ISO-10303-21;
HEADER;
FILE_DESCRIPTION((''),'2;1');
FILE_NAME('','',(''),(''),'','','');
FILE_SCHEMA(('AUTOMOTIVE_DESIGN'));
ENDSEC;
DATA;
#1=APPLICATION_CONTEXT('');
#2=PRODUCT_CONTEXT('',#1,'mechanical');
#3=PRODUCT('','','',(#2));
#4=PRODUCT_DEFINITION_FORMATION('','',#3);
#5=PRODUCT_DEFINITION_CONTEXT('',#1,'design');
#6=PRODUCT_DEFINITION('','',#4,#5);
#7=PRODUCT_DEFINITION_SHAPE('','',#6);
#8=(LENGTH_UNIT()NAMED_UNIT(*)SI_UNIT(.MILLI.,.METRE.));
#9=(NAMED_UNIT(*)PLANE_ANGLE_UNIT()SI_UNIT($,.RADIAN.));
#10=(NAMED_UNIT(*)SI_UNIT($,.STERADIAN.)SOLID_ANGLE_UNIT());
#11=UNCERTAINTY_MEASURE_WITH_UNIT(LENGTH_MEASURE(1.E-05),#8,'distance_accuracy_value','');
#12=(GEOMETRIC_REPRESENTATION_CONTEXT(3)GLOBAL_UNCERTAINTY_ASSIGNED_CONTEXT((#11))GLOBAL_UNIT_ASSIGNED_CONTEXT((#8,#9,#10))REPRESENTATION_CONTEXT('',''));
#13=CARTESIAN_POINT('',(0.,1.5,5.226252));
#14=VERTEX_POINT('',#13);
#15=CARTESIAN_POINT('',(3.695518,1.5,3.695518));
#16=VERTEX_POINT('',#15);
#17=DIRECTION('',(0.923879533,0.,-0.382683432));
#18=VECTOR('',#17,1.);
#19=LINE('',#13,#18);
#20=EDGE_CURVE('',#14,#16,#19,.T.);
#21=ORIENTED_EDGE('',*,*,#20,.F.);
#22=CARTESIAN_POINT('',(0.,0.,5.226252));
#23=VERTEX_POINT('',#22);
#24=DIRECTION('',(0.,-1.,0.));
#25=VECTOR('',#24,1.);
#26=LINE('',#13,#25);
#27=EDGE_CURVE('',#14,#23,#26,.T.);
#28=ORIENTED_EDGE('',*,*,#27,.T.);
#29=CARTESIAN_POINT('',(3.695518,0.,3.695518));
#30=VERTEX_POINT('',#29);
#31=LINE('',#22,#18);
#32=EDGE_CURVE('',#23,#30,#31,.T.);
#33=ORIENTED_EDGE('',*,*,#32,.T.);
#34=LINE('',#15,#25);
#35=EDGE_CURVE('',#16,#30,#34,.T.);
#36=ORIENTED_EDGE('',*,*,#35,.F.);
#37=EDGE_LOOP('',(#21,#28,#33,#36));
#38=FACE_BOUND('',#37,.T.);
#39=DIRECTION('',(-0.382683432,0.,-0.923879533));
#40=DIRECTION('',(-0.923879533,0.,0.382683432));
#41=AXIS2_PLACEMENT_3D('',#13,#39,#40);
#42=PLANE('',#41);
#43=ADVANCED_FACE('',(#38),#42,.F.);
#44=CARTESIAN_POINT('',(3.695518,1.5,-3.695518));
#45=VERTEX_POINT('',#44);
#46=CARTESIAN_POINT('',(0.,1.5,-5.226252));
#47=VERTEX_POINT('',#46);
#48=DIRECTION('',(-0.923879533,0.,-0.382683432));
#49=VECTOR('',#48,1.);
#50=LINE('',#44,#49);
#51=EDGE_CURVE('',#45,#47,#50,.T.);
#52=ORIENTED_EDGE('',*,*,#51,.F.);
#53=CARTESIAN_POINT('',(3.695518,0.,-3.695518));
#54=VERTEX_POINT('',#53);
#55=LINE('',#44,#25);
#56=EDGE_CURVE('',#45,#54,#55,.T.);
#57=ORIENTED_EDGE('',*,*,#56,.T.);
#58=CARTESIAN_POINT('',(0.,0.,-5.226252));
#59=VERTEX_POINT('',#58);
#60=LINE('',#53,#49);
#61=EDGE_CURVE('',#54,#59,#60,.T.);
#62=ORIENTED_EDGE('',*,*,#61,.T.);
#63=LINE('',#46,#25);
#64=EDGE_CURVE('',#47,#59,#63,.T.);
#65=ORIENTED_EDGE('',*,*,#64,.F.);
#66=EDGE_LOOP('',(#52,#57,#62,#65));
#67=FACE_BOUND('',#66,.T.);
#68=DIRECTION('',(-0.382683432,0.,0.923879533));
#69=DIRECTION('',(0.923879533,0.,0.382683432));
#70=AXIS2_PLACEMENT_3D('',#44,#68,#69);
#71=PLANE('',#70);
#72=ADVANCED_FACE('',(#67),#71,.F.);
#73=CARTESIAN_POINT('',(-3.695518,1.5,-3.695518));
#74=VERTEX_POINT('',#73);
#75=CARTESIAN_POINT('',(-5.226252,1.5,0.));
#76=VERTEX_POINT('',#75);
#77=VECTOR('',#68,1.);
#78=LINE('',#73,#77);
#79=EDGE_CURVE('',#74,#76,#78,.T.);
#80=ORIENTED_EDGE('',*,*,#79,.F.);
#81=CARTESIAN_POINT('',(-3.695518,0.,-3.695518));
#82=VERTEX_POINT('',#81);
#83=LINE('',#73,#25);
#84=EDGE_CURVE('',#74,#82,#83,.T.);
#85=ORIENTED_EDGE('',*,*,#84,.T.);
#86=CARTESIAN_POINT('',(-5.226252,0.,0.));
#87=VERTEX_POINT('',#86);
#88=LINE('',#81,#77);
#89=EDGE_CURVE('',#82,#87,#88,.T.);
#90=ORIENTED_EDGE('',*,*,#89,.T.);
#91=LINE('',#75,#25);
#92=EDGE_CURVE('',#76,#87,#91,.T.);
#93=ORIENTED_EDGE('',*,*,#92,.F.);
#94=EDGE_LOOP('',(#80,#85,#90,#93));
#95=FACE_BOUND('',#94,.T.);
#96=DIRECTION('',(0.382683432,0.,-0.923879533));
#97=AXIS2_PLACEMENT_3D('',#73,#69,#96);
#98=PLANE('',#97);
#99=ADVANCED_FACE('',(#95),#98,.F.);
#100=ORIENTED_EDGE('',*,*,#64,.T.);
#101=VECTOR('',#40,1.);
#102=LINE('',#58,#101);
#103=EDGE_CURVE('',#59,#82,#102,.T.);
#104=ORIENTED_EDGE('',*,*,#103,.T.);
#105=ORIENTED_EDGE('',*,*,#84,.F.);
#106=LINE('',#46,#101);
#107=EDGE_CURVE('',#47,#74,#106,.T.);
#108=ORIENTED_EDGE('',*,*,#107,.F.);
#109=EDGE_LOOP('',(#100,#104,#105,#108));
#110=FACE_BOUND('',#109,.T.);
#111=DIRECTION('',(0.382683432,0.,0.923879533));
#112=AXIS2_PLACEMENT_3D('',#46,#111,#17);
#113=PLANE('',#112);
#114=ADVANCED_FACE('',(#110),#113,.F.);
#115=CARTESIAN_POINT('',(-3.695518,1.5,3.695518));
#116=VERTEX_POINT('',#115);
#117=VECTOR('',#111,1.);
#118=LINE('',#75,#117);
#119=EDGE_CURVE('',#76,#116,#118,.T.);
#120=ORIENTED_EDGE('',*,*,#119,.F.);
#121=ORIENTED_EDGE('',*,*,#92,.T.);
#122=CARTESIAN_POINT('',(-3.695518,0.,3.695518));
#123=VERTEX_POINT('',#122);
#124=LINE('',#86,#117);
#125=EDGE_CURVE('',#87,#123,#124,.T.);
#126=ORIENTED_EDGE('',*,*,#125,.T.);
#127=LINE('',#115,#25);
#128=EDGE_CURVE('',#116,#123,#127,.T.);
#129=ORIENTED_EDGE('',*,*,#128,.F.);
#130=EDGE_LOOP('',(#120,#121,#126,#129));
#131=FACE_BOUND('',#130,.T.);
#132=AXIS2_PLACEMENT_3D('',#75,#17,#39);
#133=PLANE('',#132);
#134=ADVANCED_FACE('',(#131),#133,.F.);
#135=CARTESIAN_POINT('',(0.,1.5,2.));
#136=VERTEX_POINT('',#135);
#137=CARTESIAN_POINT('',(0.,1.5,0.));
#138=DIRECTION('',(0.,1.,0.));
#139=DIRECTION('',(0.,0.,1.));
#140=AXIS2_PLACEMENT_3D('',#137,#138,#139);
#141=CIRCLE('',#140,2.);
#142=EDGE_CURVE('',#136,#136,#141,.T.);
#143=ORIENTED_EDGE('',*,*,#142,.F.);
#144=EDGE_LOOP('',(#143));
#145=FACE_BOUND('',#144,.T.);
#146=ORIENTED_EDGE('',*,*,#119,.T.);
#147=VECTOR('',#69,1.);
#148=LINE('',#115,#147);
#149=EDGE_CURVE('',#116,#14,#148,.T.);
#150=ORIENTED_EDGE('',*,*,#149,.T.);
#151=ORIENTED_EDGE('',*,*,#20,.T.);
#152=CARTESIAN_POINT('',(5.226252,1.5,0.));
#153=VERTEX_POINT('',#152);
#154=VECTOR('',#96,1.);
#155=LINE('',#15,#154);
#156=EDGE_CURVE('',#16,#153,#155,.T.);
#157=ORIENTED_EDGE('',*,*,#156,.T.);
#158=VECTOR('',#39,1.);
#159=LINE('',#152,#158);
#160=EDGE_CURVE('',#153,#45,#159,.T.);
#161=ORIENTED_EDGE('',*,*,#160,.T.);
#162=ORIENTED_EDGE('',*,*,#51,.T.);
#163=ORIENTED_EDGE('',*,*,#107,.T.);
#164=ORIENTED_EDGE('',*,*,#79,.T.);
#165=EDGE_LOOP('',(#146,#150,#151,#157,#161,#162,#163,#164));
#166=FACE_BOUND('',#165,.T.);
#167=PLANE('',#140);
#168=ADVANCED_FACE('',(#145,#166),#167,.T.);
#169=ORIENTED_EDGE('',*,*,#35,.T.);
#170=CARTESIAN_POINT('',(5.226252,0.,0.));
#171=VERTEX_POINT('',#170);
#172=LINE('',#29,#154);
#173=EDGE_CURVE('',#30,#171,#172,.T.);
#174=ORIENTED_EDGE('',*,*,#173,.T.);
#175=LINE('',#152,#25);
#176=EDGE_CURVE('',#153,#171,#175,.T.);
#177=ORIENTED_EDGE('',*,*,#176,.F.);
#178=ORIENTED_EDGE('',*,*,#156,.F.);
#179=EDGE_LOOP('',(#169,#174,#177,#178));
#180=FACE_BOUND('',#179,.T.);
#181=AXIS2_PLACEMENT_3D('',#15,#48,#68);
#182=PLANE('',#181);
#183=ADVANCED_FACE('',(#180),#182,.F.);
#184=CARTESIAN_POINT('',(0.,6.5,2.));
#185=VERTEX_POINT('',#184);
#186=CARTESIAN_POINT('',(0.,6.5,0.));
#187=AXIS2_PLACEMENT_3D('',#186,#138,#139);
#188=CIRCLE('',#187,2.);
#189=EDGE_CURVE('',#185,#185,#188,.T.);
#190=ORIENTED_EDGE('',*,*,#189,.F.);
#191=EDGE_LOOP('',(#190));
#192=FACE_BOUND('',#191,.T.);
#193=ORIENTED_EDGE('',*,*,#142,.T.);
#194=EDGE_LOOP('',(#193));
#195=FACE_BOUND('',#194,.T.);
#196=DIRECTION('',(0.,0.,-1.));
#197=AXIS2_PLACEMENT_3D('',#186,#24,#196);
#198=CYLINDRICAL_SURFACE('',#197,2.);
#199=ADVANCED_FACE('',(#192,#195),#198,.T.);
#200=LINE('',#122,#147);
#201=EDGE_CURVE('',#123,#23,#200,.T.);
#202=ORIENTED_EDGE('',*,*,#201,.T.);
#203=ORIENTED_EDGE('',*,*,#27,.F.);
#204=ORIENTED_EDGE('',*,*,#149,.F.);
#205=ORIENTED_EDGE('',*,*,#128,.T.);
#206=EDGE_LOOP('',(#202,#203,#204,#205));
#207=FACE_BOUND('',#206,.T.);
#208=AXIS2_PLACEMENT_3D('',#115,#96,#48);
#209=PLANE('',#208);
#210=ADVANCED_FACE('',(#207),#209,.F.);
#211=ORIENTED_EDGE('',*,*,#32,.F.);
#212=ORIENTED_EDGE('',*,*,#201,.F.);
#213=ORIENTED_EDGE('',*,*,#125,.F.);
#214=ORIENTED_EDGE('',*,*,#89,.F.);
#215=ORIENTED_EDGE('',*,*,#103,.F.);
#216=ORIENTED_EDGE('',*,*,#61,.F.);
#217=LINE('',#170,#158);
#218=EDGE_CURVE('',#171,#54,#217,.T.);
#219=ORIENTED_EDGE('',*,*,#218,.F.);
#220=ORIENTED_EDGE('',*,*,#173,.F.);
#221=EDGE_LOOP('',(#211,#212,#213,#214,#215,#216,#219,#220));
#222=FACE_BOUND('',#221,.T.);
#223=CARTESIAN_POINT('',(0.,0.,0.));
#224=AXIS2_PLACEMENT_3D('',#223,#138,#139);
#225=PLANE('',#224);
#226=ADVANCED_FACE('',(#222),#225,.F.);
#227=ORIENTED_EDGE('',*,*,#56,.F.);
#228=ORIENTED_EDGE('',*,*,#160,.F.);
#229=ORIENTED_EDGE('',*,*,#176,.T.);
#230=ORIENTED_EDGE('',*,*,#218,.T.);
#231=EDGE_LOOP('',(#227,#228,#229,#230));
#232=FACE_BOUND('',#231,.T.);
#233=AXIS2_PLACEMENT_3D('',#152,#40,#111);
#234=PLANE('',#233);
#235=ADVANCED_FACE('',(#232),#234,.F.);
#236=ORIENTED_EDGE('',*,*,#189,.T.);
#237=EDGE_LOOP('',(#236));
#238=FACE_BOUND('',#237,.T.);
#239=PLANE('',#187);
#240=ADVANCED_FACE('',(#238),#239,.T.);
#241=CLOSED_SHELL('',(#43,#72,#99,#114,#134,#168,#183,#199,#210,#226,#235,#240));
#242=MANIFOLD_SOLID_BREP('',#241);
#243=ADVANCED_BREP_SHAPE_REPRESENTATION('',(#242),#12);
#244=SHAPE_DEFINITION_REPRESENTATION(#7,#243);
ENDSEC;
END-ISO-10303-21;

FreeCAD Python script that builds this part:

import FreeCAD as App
import Part
import Sketcher
Q = App.Units.Quantity


def add_polygon(sketch, points):
    """Adds a closed chain of lines whose ends are joined by coincident constraints."""
    first, n = sketch.GeometryCount, len(points)
    for a, b in zip(points, points[1:] + points[:1]):
        sketch.addGeometry(Part.LineSegment(App.Vector(*a, 0), App.Vector(*b, 0)), False)
    for i in range(n):
        sketch.addConstraint(Sketcher.Constraint("Coincident", first + i, 2, first + (i + 1) % n, 1))

doc = App.newDocument("Part")
body = doc.addObject("PartDesign::Body", "Body")

sketch1 = doc.addObject("Sketcher::SketchObject", "Sketch")
body.addObject(sketch1)
sketch1.AttachmentSupport = (doc.XZ_Plane, [""])
sketch1.MapMode = "FlatFace"
add_polygon(sketch1, [(5.2, 0), (3.7, -3.7), (0, -5.2), (-3.7, -3.7), (-5.2, 0), (-3.7, 3.7), (0, 5.2), (3.7, 3.7)])
sketch1.addConstraint([
    Sketcher.Constraint("Symmetric", 0, 2, 4, 2, -1, 1),
    Sketcher.Constraint("Symmetric", 1, 2, 5, 2, -1, 1),
    Sketcher.Constraint("Symmetric", 2, 2, 6, 2, -1, 1),
    Sketcher.Constraint("Symmetric", 3, 2, 7, 2, -1, 1),
    Sketcher.Constraint("Symmetric", 0, 2, 2, 2, -2),
    Sketcher.Constraint("PointOnObject", 1, 2, -2),
    Sketcher.Constraint("PointOnObject", 3, 2, -1),
    Sketcher.Constraint("Perpendicular", 0, 2),
    Sketcher.Constraint("Equal", 0, 1),
    Sketcher.Constraint("Distance", 0, 4.0),
    Sketcher.Constraint("Angle", 0, Q("-112.5 deg")),
])
pad1 = doc.addObject("PartDesign::Pad", "Pad")
body.addObject(pad1)
pad1.Profile = sketch1
pad1.Length = 1.5
pad1.Reversed = True

sketch2 = doc.addObject("Sketcher::SketchObject", "Sketch001")
body.addObject(sketch2)
sketch2.AttachmentSupport = (doc.XZ_Plane, [""])
sketch2.MapMode = "FlatFace"
sketch2.AttachmentOffset = App.Placement(App.Vector(0, 0, -1.5), App.Rotation())
sketch2.addGeometry(Part.Circle(App.Vector(0, 0, 0), App.Vector(0, 0, 1), 2), False)
sketch2.addConstraint([
    Sketcher.Constraint("Coincident", 0, 3, -1, 1),
    Sketcher.Constraint("Diameter", 0, 4.0),
])
pad2 = doc.addObject("PartDesign::Pad", "Pad001")
body.addObject(pad2)
pad2.Profile = sketch2
pad2.Length = 5
pad2.Reversed = True

doc.recompute()
